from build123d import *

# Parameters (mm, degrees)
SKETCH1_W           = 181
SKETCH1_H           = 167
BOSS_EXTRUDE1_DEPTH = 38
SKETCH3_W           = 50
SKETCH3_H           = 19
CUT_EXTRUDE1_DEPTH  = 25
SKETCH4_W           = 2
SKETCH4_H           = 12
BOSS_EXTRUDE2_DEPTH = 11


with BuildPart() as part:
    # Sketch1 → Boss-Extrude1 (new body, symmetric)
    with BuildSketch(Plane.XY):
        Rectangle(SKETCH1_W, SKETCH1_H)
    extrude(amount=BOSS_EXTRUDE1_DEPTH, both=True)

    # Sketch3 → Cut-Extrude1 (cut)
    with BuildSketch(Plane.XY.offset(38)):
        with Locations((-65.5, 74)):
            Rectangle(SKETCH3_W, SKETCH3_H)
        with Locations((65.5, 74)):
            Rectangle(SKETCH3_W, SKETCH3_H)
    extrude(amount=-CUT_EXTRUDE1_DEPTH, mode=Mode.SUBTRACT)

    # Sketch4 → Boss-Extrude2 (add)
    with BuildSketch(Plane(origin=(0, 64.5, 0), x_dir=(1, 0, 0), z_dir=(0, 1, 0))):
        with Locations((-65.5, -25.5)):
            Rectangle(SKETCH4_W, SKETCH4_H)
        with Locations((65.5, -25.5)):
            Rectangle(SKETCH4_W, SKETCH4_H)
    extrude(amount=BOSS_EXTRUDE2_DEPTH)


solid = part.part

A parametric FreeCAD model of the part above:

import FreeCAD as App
import Part
import Sketcher
from FreeCAD import Vector

doc = App.newDocument("Part")
body = doc.addObject("PartDesign::Body", "Body")

# Sketch on XY plane
sketch1 = body.newObject("Sketcher::SketchObject", "Sketch")
sketch1.AttachmentSupport = (doc.getObject("XY_Plane"), [""])
sketch1.MapMode = "FlatFace"
sketch1.addGeometry(Part.LineSegment(Vector(-90, 84, 0), Vector(-90, -84, 0)), False)
sketch1.addGeometry(Part.LineSegment(Vector(-90, -84, 0), Vector(90, -84, 0)), False)
sketch1.addGeometry(Part.LineSegment(Vector(90, -84, 0), Vector(90, 84, 0)), False)
sketch1.addGeometry(Part.LineSegment(Vector(90, 84, 0), Vector(-90, 84, 0)), False)
sketch1.addConstraint(Sketcher.Constraint("Coincident", 0, 2, 1, 1))
sketch1.addConstraint(Sketcher.Constraint("Coincident", 1, 2, 2, 1))
sketch1.addConstraint(Sketcher.Constraint("Coincident", 2, 2, 3, 1))
sketch1.addConstraint(Sketcher.Constraint("Coincident", 3, 2, 0, 1))
sketch1.addConstraint(Sketcher.Constraint("Vertical", 0))
sketch1.addConstraint(Sketcher.Constraint("Horizontal", 1))
sketch1.addConstraint(Sketcher.Constraint("Vertical", 2))
sketch1.addConstraint(Sketcher.Constraint("Horizontal", 3))
sketch1.addConstraint(Sketcher.Constraint("Symmetric", 0, 2, 2, 2, -1, 1))
sketch1.addConstraint(Sketcher.Constraint("DistanceX", 1, 1, 1, 2, 181.0))
sketch1.addConstraint(Sketcher.Constraint("DistanceY", 0, 2, 0, 1, 167.0))
pad1 = body.newObject("PartDesign::Pad", "Pad")
pad1.Profile = sketch1
pad1.Length = 76
pad1.Midplane = True

# Sketch on XY plane
sketch2 = body.newObject("Sketcher::SketchObject", "Sketch001")
sketch2.AttachmentSupport = (doc.getObject("XY_Plane"), [""])
sketch2.MapMode = "FlatFace"
sketch2.AttachmentOffset = App.Placement(Vector(0, 0, 38), App.Rotation())
sketch2.addGeometry(Part.LineSegment(Vector(-90, 84, 0), Vector(-90, 64, 0)), False)
sketch2.addGeometry(Part.LineSegment(Vector(-90, 64, 0), Vector(-40, 64, 0)), False)
sketch2.addGeometry(Part.LineSegment(Vector(-40, 64, 0), Vector(-40, 84, 0)), False)
sketch2.addGeometry(Part.LineSegment(Vector(-40, 84, 0), Vector(-90, 84, 0)), False)
sketch2.addGeometry(Part.LineSegment(Vector(40, 84, 0), Vector(40, 64, 0)), False)
sketch2.addGeometry(Part.LineSegment(Vector(40, 64, 0), Vector(90, 64, 0)), False)
sketch2.addGeometry(Part.LineSegment(Vector(90, 64, 0), Vector(90, 84, 0)), False)
sketch2.addGeometry(Part.LineSegment(Vector(90, 84, 0), Vector(40, 84, 0)), False)
sketch2.addConstraint(Sketcher.Constraint("Coincident", 0, 2, 1, 1))
sketch2.addConstraint(Sketcher.Constraint("Coincident", 1, 2, 2, 1))
sketch2.addConstraint(Sketcher.Constraint("Coincident", 2, 2, 3, 1))
sketch2.addConstraint(Sketcher.Constraint("Coincident", 3, 2, 0, 1))
sketch2.addConstraint(Sketcher.Constraint("Coincident", 4, 2, 5, 1))
sketch2.addConstraint(Sketcher.Constraint("Coincident", 5, 2, 6, 1))
sketch2.addConstraint(Sketcher.Constraint("Coincident", 6, 2, 7, 1))
sketch2.addConstraint(Sketcher.Constraint("Coincident", 7, 2, 4, 1))
sketch2.addConstraint(Sketcher.Constraint("Vertical", 0))
sketch2.addConstraint(Sketcher.Constraint("Horizontal", 1))
sketch2.addConstraint(Sketcher.Constraint("Vertical", 2))
sketch2.addConstraint(Sketcher.Constraint("Horizontal", 3))
sketch2.addConstraint(Sketcher.Constraint("Vertical", 4))
sketch2.addConstraint(Sketcher.Constraint("Horizontal", 5))
sketch2.addConstraint(Sketcher.Constraint("Vertical", 6))
sketch2.addConstraint(Sketcher.Constraint("Horizontal", 7))
sketch2.addConstraint(Sketcher.Constraint("Symmetric", 1, 2, 4, 2, -2))
sketch2.addConstraint(Sketcher.Constraint("Symmetric", 3, 2, 6, 2, -2))
sketch2.addConstraint(Sketcher.Constraint("DistanceX", 1, 1, 1, 2, 50.0))
sketch2.addConstraint(Sketcher.Constraint("DistanceY", 0, 2, 0, 1, 19.0))
sketch2.addConstraint(Sketcher.Constraint("DistanceX", 1, 2, 4, 2, 81.0))
sketch2.addConstraint(Sketcher.Constraint("DistanceY", -1, 1, 0, 2, 64.5))
pocket1 = body.newObject("PartDesign::Pocket", "Pocket")
pocket1.Profile = sketch2
pocket1.Length = 25

# Sketch on XZ plane
sketch3 = body.newObject("Sketcher::SketchObject", "Sketch002")
sketch3.AttachmentSupport = (doc.getObject("XZ_Plane"), [""])
sketch3.MapMode = "FlatFace"
sketch3.AttachmentOffset = App.Placement(Vector(0, 0, -64.5), App.Rotation())
sketch3.addGeometry(Part.LineSegment(Vector(-66.5, 19.5, 0), Vector(-66.5, 31.5, 0)), False)
sketch3.addGeometry(Part.LineSegment(Vector(-66.5, 31.5, 0), Vector(-64.5, 31.5, 0)), False)
sketch3.addGeometry(Part.LineSegment(Vector(-64.5, 31.5, 0), Vector(-64.5, 19.5, 0)), False)
sketch3.addGeometry(Part.LineSegment(Vector(-64.5, 19.5, 0), Vector(-66.5, 19.5, 0)), False)
sketch3.addGeometry(Part.LineSegment(Vector(64.5, 19.5, 0), Vector(64.5, 31.5, 0)), False)
sketch3.addGeometry(Part.LineSegment(Vector(64.5, 31.5, 0), Vector(66.5, 31.5, 0)), False)
sketch3.addGeometry(Part.LineSegment(Vector(66.5, 31.5, 0), Vector(66.5, 19.5, 0)), False)
sketch3.addGeometry(Part.LineSegment(Vector(66.5, 19.5, 0), Vector(64.5, 19.5, 0)), False)
sketch3.addConstraint(Sketcher.Constraint("Coincident", 0, 2, 1, 1))
sketch3.addConstraint(Sketcher.Constraint("Coincident", 1, 2, 2, 1))
sketch3.addConstraint(Sketcher.Constraint("Coincident", 2, 2, 3, 1))
sketch3.addConstraint(Sketcher.Constraint("Coincident", 3, 2, 0, 1))
sketch3.addConstraint(Sketcher.Constraint("Coincident", 4, 2, 5, 1))
sketch3.addConstraint(Sketcher.Constraint("Coincident", 5, 2, 6, 1))
sketch3.addConstraint(Sketcher.Constraint("Coincident", 6, 2, 7, 1))
sketch3.addConstraint(Sketcher.Constraint("Coincident", 7, 2, 4, 1))
sketch3.addConstraint(Sketcher.Constraint("Vertical", 0))
sketch3.addConstraint(Sketcher.Constraint("Horizontal", 1))
sketch3.addConstraint(Sketcher.Constraint("Vertical", 2))
sketch3.addConstraint(Sketcher.Constraint("Horizontal", 3))
sketch3.addConstraint(Sketcher.Constraint("Vertical", 4))
sketch3.addConstraint(Sketcher.Constraint("Horizontal", 5))
sketch3.addConstraint(Sketcher.Constraint("Vertical", 6))
sketch3.addConstraint(Sketcher.Constraint("Horizontal", 7))
sketch3.addConstraint(Sketcher.Constraint("Symmetric", 1, 2, 4, 2, -2))
sketch3.addConstraint(Sketcher.Constraint("Symmetric", 3, 2, 6, 2, -2))
sketch3.addConstraint(Sketcher.Constraint("DistanceX", 1, 1, 1, 2, 2.0))
sketch3.addConstraint(Sketcher.Constraint("DistanceY", 0, 1, 0, 2, 12.0))
sketch3.addConstraint(Sketcher.Constraint("DistanceX", 1, 2, 4, 2, 129.0))
sketch3.addConstraint(Sketcher.Constraint("DistanceY", -1, 1, 0, 2, 31.5))
pad2 = body.newObject("PartDesign::Pad", "Pad001")
pad2.Profile = sketch3
pad2.Length = 11
pad2.Reversed = True

doc.recompute()
